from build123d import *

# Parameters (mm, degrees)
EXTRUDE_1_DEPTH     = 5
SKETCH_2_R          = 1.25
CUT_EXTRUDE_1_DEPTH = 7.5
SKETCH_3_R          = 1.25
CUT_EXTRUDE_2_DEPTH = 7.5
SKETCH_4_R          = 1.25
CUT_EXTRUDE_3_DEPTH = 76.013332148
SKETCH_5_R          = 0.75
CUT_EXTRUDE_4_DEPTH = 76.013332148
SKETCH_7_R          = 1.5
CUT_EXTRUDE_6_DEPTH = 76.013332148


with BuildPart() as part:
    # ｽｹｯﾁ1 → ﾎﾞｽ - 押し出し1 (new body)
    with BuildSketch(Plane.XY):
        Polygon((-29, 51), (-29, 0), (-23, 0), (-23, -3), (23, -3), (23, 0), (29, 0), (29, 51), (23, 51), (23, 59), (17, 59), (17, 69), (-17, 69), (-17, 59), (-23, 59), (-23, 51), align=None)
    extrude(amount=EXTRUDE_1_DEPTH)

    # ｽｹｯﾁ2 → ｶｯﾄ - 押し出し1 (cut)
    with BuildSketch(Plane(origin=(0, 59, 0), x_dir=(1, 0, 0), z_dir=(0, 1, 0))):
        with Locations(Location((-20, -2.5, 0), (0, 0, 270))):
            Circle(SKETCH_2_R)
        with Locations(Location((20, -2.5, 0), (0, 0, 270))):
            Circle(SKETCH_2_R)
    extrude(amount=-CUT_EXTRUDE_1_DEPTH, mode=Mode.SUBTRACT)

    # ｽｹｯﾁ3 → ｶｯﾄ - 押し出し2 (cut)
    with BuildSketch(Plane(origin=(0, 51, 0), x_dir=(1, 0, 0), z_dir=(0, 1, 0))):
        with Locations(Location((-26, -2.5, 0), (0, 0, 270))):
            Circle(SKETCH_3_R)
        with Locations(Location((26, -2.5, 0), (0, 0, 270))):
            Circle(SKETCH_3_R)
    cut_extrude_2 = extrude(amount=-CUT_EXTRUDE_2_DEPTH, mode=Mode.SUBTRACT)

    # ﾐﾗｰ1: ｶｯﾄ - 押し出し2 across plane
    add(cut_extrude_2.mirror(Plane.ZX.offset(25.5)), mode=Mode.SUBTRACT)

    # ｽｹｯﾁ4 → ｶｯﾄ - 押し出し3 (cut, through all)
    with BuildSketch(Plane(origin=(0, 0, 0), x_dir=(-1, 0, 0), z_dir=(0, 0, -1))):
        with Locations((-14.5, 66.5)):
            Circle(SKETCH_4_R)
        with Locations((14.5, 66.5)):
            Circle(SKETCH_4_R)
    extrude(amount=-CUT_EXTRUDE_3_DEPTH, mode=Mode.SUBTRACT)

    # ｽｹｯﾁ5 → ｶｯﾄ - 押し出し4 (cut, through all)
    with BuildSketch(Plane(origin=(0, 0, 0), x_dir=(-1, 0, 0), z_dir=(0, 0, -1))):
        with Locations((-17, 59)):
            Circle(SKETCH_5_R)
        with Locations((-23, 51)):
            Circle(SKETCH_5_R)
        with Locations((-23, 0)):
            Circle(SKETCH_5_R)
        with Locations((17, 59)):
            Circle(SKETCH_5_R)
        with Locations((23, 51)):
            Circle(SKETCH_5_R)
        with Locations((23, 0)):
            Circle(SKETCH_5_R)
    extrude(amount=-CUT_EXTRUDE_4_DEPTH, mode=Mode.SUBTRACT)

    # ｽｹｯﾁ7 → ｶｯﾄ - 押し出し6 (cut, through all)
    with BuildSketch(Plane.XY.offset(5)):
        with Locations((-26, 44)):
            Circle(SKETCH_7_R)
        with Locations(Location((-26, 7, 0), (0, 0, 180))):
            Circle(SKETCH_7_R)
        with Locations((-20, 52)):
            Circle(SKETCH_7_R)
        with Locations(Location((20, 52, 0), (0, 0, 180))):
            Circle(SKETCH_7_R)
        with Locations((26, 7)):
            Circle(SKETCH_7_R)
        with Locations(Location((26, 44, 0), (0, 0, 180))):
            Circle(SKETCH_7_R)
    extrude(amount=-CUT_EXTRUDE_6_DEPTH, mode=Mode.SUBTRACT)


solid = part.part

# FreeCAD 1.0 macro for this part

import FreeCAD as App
import Part
import Sketcher

V = App.Vector

doc = App.newDocument("Part")
body = doc.addObject("PartDesign::Body", "Body")

sketch1 = body.newObject("Sketcher::SketchObject", "Sketch")
sketch1.AttachmentSupport = (doc.getObject("XY_Plane"), [""])
sketch1.MapMode = "FlatFace"
sketch1.addGeometry(Part.LineSegment(V(-29, 51, 0), V(-29, 0, 0)), False)
sketch1.addGeometry(Part.LineSegment(V(-29, 0, 0), V(-23, 0, 0)), False)
sketch1.addGeometry(Part.LineSegment(V(-23, 0, 0), V(-23, -3, 0)), False)
sketch1.addGeometry(Part.LineSegment(V(-23, -3, 0), V(23, -3, 0)), False)
sketch1.addGeometry(Part.LineSegment(V(23, -3, 0), V(23, 0, 0)), False)
sketch1.addGeometry(Part.LineSegment(V(23, 0, 0), V(29, 0, 0)), False)
sketch1.addGeometry(Part.LineSegment(V(29, 0, 0), V(29, 51, 0)), False)
sketch1.addGeometry(Part.LineSegment(V(29, 51, 0), V(23, 51, 0)), False)
sketch1.addGeometry(Part.LineSegment(V(23, 51, 0), V(23, 59, 0)), False)
sketch1.addGeometry(Part.LineSegment(V(23, 59, 0), V(17, 59, 0)), False)
sketch1.addGeometry(Part.LineSegment(V(17, 59, 0), V(17, 69, 0)), False)
sketch1.addGeometry(Part.LineSegment(V(17, 69, 0), V(-17, 69, 0)), False)
sketch1.addGeometry(Part.LineSegment(V(-17, 69, 0), V(-17, 59, 0)), False)
sketch1.addGeometry(Part.LineSegment(V(-17, 59, 0), V(-23, 59, 0)), False)
sketch1.addGeometry(Part.LineSegment(V(-23, 59, 0), V(-23, 51, 0)), False)
sketch1.addGeometry(Part.LineSegment(V(-23, 51, 0), V(-29, 51, 0)), False)
sketch1.addConstraint(Sketcher.Constraint("Coincident", 0, 2, 1, 1))
sketch1.addConstraint(Sketcher.Constraint("Coincident", 1, 2, 2, 1))
sketch1.addConstraint(Sketcher.Constraint("Coincident", 2, 2, 3, 1))
sketch1.addConstraint(Sketcher.Constraint("Coincident", 3, 2, 4, 1))
sketch1.addConstraint(Sketcher.Constraint("Coincident", 4, 2, 5, 1))
sketch1.addConstraint(Sketcher.Constraint("Coincident", 5, 2, 6, 1))
sketch1.addConstraint(Sketcher.Constraint("Coincident", 6, 2, 7, 1))
sketch1.addConstraint(Sketcher.Constraint("Coincident", 7, 2, 8, 1))
sketch1.addConstraint(Sketcher.Constraint("Coincident", 8, 2, 9, 1))
sketch1.addConstraint(Sketcher.Constraint("Coincident", 9, 2, 10, 1))
sketch1.addConstraint(Sketcher.Constraint("Coincident", 10, 2, 11, 1))
sketch1.addConstraint(Sketcher.Constraint("Coincident", 11, 2, 12, 1))
sketch1.addConstraint(Sketcher.Constraint("Coincident", 12, 2, 13, 1))
sketch1.addConstraint(Sketcher.Constraint("Coincident", 13, 2, 14, 1))
sketch1.addConstraint(Sketcher.Constraint("Coincident", 14, 2, 15, 1))
sketch1.addConstraint(Sketcher.Constraint("Coincident", 15, 2, 0, 1))
sketch1.addConstraint(Sketcher.Constraint("Vertical", 0))
sketch1.addConstraint(Sketcher.Constraint("Horizontal", 1))
sketch1.addConstraint(Sketcher.Constraint("Vertical", 2))
sketch1.addConstraint(Sketcher.Constraint("Horizontal", 3))
sketch1.addConstraint(Sketcher.Constraint("Vertical", 4))
sketch1.addConstraint(Sketcher.Constraint("Horizontal", 5))
sketch1.addConstraint(Sketcher.Constraint("Vertical", 6))
sketch1.addConstraint(Sketcher.Constraint("Horizontal", 7))
sketch1.addConstraint(Sketcher.Constraint("Vertical", 8))
sketch1.addConstraint(Sketcher.Constraint("Horizontal", 9))
sketch1.addConstraint(Sketcher.Constraint("Vertical", 10))
sketch1.addConstraint(Sketcher.Constraint("Horizontal", 11))
sketch1.addConstraint(Sketcher.Constraint("Vertical", 12))
sketch1.addConstraint(Sketcher.Constraint("Horizontal", 13))
sketch1.addConstraint(Sketcher.Constraint("Vertical", 14))
sketch1.addConstraint(Sketcher.Constraint("Horizontal", 15))
sketch1.addConstraint(Sketcher.Constraint("Symmetric", 1, 2, 4, 2, -1, 1))
sketch1.addConstraint(Sketcher.Constraint("Symmetric", 0, 2, 5, 2, -2))
sketch1.addConstraint(Sketcher.Constraint("Symmetric", 9, 2, 12, 2, -2))
sketch1.addConstraint(Sketcher.Constraint("Symmetric", 7, 2, 14, 2, -2))
sketch1.addConstraint(Sketcher.Constraint("Vertical", 4, 2, 7, 2))
sketch1.addConstraint(Sketcher.Constraint("Equal", 7, 9))
sketch1.addConstraint(Sketcher.Constraint("DistanceX", 1, 1, 1, 2, 6.0))
sketch1.addConstraint(Sketcher.Constraint("DistanceX", 3, 1, 3, 2, 46.0))
sketch1.addConstraint(Sketcher.Constraint("DistanceY", 0, 2, 0, 1, 51.0))
sketch1.addConstraint(Sketcher.Constraint("DistanceY", 2, 2, 2, 1, 3.0))
sketch1.addConstraint(Sketcher.Constraint("DistanceY", 8, 1, 8, 2, 8.0))
sketch1.addConstraint(Sketcher.Constraint("DistanceY", 10, 1, 10, 2, 10.0))
pad1 = body.newObject("PartDesign::Pad", "Pad")
pad1.Profile = sketch1
pad1.Length = 5

sketch2 = body.newObject("Sketcher::SketchObject", "Sketch001")
sketch2.AttachmentSupport = (doc.getObject("XZ_Plane"), [""])
sketch2.MapMode = "FlatFace"
sketch2.AttachmentOffset = App.Placement(V(0, 0, -59), App.Rotation())
sketch2.addGeometry(Part.Circle(V(-20, 2.5, 0), V(0, 0, 1), 1.2), False)
sketch2.addGeometry(Part.Circle(V(20, 2.5, 0), V(0, 0, 1), 1.2), False)
sketch2.addConstraint(Sketcher.Constraint("Equal", 0, 1))
sketch2.addConstraint(Sketcher.Constraint("Symmetric", 0, 3, 1, 3, -2))
sketch2.addConstraint(Sketcher.Constraint("Diameter", 0, 2.5))
sketch2.addConstraint(Sketcher.Constraint("DistanceX", 0, 3, -1, 1, 20.0))
sketch2.addConstraint(Sketcher.Constraint("DistanceY", -1, 1, 0, 3, 2.5))
pocket1 = body.newObject("PartDesign::Pocket", "Pocket")
pocket1.Profile = sketch2
pocket1.Length = 7.5
pocket1.Reversed = True

sketch3 = body.newObject("Sketcher::SketchObject", "Sketch002")
sketch3.AttachmentSupport = (doc.getObject("XZ_Plane"), [""])
sketch3.MapMode = "FlatFace"
sketch3.AttachmentOffset = App.Placement(V(0, 0, -51), App.Rotation())
sketch3.addGeometry(Part.Circle(V(-26, 2.5, 0), V(0, 0, 1), 1.2), False)
sketch3.addGeometry(Part.Circle(V(26, 2.5, 0), V(0, 0, 1), 1.2), False)
sketch3.addConstraint(Sketcher.Constraint("Equal", 0, 1))
sketch3.addConstraint(Sketcher.Constraint("Symmetric", 0, 3, 1, 3, -2))
sketch3.addConstraint(Sketcher.Constraint("Diameter", 0, 2.5))
sketch3.addConstraint(Sketcher.Constraint("DistanceX", 0, 3, -1, 1, 26.0))
sketch3.addConstraint(Sketcher.Constraint("DistanceY", -1, 1, 0, 3, 2.5))
pocket2 = body.newObject("PartDesign::Pocket", "Pocket001")
pocket2.Profile = sketch3
pocket2.Length = 7.5
pocket2.Reversed = True
doc.recompute()

datumplane = body.newObject("PartDesign::Plane", "DatumPlane")
datumplane.AttachmentSupport = (doc.getObject("XZ_Plane"), [""])
datumplane.MapMode = "FlatFace"
datumplane.AttachmentOffset = App.Placement(V(0, 0, -25.5), App.Rotation())
mirrored = body.newObject("PartDesign::Mirrored", "Mirrored")
mirrored.Originals = [pocket2]
mirrored.MirrorPlane = (datumplane, [""])
body.Tip = mirrored

sketch4 = body.newObject("Sketcher::SketchObject", "Sketch003")
sketch4.AttachmentSupport = (doc.getObject("XY_Plane"), [""])
sketch4.MapMode = "FlatFace"
sketch4.addGeometry(Part.Circle(V(14.5, 66.5, 0), V(0, 0, 1), 1.2), False)
sketch4.addGeometry(Part.Circle(V(-14.5, 66.5, 0), V(0, 0, 1), 1.2), False)
sketch4.addConstraint(Sketcher.Constraint("Equal", 0, 1))
sketch4.addConstraint(Sketcher.Constraint("Symmetric", 0, 3, 1, 3, -2))
sketch4.addConstraint(Sketcher.Constraint("Diameter", 0, 2.5))
sketch4.addConstraint(Sketcher.Constraint("DistanceX", 1, 3, 0, 3, 29.0))
sketch4.addConstraint(Sketcher.Constraint("DistanceY", -1, 1, 0, 3, 66.5))
pocket3 = body.newObject("PartDesign::Pocket", "Pocket002")
pocket3.Profile = sketch4
pocket3.Type = "ThroughAll"
pocket3.Reversed = True

sketch5 = body.newObject("Sketcher::SketchObject", "Sketch004")
sketch5.AttachmentSupport = (doc.getObject("XY_Plane"), [""])
sketch5.MapMode = "FlatFace"
sketch5.addGeometry(Part.Circle(V(17, 59, 0), V(0, 0, 1), 0.8), False)
sketch5.addGeometry(Part.Circle(V(23, 51, 0), V(0, 0, 1), 0.8), False)
sketch5.addGeometry(Part.Circle(V(23, 0, 0), V(0, 0, 1), 0.8), False)
sketch5.addGeometry(Part.Circle(V(-17, 59, 0), V(0, 0, 1), 0.8), False)
sketch5.addGeometry(Part.Circle(V(-23, 51, 0), V(0, 0, 1), 0.8), False)
sketch5.addGeometry(Part.Circle(V(-23, 0, 0), V(0, 0, 1), 0.8), False)
sketch5.addConstraint(Sketcher.Constraint("Equal", 0, 1))
sketch5.addConstraint(Sketcher.Constraint("Equal", 1, 2))
sketch5.addConstraint(Sketcher.Constraint("Equal", 2, 3))
sketch5.addConstraint(Sketcher.Constraint("Equal", 3, 4))
sketch5.addConstraint(Sketcher.Constraint("Equal", 4, 5))
sketch5.addConstraint(Sketcher.Constraint("Symmetric", 2, 3, 5, 3, -1, 1))
sketch5.addConstraint(Sketcher.Constraint("Symmetric", 0, 3, 3, 3, -2))
sketch5.addConstraint(Sketcher.Constraint("Symmetric", 1, 3, 4, 3, -2))
sketch5.addConstraint(Sketcher.Constraint("PointOnObject", 2, 3, -1))
sketch5.addConstraint(Sketcher.Constraint("Vertical", 1, 3, 2, 3))
sketch5.addConstraint(Sketcher.Constraint("Diameter", 0, 1.5))
sketch5.addConstraint(Sketcher.Constraint("DistanceX", -1, 1, 0, 3, 17.0))
sketch5.addConstraint(Sketcher.Constraint("DistanceY", -1, 1, 0, 3, 59.0))
sketch5.addConstraint(Sketcher.Constraint("DistanceX", -1, 1, 1, 3, 23.0))
sketch5.addConstraint(Sketcher.Constraint("DistanceY", -1, 1, 1, 3, 51.0))
pocket4 = body.newObject("PartDesign::Pocket", "Pocket003")
pocket4.Profile = sketch5
pocket4.Type = "ThroughAll"
pocket4.Reversed = True

sketch6 = body.newObject("Sketcher::SketchObject", "Sketch005")
sketch6.AttachmentSupport = (doc.getObject("XY_Plane"), [""])
sketch6.MapMode = "FlatFace"
sketch6.AttachmentOffset = App.Placement(V(0, 0, 5), App.Rotation())
sketch6.addGeometry(Part.Circle(V(-26, 44, 0), V(0, 0, 1), 1.5), False)
sketch6.addGeometry(Part.Circle(V(-26, 7, 0), V(0, 0, 1), 1.5), False)
sketch6.addGeometry(Part.Circle(V(-20, 52, 0), V(0, 0, 1), 1.5), False)
sketch6.addGeometry(Part.Circle(V(20, 52, 0), V(0, 0, 1), 1.5), False)
sketch6.addGeometry(Part.Circle(V(26, 7, 0), V(0, 0, 1), 1.5), False)
sketch6.addGeometry(Part.Circle(V(26, 44, 0), V(0, 0, 1), 1.5), False)
sketch6.addConstraint(Sketcher.Constraint("Equal", 0, 1))
sketch6.addConstraint(Sketcher.Constraint("Equal", 1, 2))
sketch6.addConstraint(Sketcher.Constraint("Equal", 2, 3))
sketch6.addConstraint(Sketcher.Constraint("Equal", 3, 4))
sketch6.addConstraint(Sketcher.Constraint("Equal", 4, 5))
sketch6.addConstraint(Sketcher.Constraint("Symmetric", 2, 3, 3, 3, -2))
sketch6.addConstraint(Sketcher.Constraint("Symmetric", 1, 3, 4, 3, -2))
sketch6.addConstraint(Sketcher.Constraint("Symmetric", 0, 3, 5, 3, -2))
sketch6.addConstraint(Sketcher.Constraint("Vertical", 0, 3, 1, 3))
sketch6.addConstraint(Sketcher.Constraint("Diameter", 0, 3.0))
sketch6.addConstraint(Sketcher.Constraint("DistanceX", 0, 3, -1, 1, 26.0))
sketch6.addConstraint(Sketcher.Constraint("DistanceY", -1, 1, 0, 3, 44.0))
sketch6.addConstraint(Sketcher.Constraint("DistanceY", -1, 1, 1, 3, 7.0))
sketch6.addConstraint(Sketcher.Constraint("DistanceX", 2, 3, -1, 1, 20.0))
sketch6.addConstraint(Sketcher.Constraint("DistanceY", -1, 1, 2, 3, 52.0))
pocket5 = body.newObject("PartDesign::Pocket", "Pocket004")
pocket5.Profile = sketch6
pocket5.Type = "ThroughAll"

doc.recompute()
